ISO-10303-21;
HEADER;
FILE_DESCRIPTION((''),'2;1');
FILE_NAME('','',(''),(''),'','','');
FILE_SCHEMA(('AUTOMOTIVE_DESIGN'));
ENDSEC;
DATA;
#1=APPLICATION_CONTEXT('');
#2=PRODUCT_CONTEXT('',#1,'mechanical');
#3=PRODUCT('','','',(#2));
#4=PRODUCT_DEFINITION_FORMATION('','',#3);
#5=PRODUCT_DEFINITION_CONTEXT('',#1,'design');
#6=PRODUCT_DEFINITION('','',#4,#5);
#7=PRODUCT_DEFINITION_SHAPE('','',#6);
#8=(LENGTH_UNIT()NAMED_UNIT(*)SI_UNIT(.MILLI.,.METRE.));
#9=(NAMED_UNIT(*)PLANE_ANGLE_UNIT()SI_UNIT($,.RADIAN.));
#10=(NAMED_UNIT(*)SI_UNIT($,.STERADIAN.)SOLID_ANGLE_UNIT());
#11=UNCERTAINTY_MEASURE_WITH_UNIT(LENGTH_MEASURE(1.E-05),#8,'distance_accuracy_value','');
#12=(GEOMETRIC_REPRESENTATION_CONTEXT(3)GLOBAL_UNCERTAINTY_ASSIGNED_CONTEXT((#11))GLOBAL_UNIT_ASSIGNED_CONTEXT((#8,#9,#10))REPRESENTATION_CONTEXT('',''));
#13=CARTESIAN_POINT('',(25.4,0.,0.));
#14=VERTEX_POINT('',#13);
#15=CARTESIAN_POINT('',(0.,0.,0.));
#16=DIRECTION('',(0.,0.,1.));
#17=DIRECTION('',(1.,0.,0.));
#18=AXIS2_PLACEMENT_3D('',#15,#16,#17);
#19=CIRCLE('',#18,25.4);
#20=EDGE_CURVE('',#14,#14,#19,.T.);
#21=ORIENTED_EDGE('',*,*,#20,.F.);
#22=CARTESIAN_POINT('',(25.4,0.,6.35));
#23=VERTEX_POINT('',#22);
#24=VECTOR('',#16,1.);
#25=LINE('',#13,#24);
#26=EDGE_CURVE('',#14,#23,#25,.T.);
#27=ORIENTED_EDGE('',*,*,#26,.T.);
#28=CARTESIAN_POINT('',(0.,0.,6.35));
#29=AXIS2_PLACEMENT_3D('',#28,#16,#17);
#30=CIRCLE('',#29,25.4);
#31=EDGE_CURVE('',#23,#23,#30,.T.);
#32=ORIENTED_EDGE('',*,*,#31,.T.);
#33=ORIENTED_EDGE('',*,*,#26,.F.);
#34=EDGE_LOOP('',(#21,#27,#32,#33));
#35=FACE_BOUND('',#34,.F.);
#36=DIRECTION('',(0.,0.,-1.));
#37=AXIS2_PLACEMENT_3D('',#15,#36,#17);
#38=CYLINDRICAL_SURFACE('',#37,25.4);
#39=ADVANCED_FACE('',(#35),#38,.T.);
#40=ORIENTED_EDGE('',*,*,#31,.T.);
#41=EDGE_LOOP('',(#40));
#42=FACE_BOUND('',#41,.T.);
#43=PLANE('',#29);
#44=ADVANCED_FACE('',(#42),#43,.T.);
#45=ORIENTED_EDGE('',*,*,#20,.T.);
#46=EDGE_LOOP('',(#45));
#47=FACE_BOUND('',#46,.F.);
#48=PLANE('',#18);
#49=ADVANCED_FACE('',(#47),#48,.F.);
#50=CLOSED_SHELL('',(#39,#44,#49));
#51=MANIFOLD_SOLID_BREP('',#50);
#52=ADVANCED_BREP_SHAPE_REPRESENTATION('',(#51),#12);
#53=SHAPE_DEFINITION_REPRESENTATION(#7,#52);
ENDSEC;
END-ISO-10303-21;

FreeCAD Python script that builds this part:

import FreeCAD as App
import Part
import Sketcher
from FreeCAD import Vector
Q = App.Units.Quantity

doc = App.newDocument("Part")
body = doc.addObject("PartDesign::Body", "Body")

sketch1 = body.newObject("Sketcher::SketchObject", "Sketch")
sketch1.AttachmentSupport = (doc.getObject("XY_Plane"), [""])
sketch1.MapMode = "FlatFace"
sketch1.addGeometry(Part.Circle(Vector(0, 0, 0), Vector(0, 0, 1), 25.4), False)
sketch1.addConstraint(Sketcher.Constraint("Coincident", 0, 3, -1, 1))
sketch1.addConstraint(Sketcher.Constraint("Diameter", 0, Q("2 in")))
pad1 = body.newObject("PartDesign::Pad", "Pad")
pad1.Profile = sketch1
pad1.Length = Q("0.25 in")

doc.recompute()
